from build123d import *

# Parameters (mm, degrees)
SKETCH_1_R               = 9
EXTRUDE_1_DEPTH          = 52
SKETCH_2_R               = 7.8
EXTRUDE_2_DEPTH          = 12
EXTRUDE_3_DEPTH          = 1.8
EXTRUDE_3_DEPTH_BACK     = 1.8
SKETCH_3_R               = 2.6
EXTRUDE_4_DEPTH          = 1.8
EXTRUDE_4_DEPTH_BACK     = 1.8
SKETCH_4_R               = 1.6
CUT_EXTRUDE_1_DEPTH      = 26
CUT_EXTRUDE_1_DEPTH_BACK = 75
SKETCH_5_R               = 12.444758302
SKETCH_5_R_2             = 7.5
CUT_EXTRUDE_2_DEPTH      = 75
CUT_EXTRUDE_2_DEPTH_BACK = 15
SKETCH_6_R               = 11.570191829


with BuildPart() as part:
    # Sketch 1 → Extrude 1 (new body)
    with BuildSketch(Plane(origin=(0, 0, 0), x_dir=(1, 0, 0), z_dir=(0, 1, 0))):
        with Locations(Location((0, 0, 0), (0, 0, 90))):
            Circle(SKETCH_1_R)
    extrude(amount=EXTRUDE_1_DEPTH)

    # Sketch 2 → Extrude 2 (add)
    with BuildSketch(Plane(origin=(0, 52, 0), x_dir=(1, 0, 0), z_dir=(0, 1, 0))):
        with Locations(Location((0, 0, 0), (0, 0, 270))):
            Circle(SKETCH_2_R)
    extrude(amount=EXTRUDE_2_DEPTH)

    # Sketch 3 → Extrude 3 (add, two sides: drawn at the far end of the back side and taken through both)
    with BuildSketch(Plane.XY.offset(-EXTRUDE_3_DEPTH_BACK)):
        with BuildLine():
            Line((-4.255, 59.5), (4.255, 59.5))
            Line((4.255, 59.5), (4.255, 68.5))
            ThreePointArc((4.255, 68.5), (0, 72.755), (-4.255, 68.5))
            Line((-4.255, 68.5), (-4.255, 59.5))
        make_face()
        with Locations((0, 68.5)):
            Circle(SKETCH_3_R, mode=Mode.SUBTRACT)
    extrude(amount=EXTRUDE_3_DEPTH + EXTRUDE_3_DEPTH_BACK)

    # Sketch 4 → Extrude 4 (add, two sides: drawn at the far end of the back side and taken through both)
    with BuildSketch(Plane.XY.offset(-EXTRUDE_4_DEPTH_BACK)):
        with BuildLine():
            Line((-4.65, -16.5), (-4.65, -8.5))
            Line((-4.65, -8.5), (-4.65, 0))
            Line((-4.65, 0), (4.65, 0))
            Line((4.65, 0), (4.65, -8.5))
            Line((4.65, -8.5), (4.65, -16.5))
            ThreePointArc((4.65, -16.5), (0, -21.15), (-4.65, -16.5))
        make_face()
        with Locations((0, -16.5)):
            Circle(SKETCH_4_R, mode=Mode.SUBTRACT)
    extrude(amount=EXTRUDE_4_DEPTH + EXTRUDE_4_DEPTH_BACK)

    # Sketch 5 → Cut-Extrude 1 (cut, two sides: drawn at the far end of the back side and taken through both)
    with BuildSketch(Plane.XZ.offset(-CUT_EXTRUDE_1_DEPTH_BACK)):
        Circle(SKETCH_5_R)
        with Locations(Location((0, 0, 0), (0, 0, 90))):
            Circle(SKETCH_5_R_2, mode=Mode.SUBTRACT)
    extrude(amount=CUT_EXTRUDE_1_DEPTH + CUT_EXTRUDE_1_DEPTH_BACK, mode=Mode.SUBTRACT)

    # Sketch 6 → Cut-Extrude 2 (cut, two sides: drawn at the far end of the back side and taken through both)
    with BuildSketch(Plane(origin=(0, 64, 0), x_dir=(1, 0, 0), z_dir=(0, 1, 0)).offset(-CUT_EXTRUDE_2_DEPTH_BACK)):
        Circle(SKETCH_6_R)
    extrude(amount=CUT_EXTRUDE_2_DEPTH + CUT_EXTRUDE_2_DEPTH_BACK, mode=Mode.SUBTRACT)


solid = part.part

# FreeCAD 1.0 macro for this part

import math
import FreeCAD as App
import Part
import Sketcher
from FreeCAD import Vector

doc = App.newDocument("Part")
body = doc.addObject("PartDesign::Body", "Body")

# Sketch on XZ plane
sketch1 = doc.addObject("Sketcher::SketchObject", "Sketch")
body.addObject(sketch1)
sketch1.AttachmentSupport = (doc.XZ_Plane, [""])
sketch1.MapMode = "FlatFace"
sketch1.addGeometry(Part.Circle(Vector(0, 0, 0), Vector(0, 0, 1), 9), False)
sketch1.addConstraint([
    Sketcher.Constraint("Coincident", 0, 3, -1, 1),
    Sketcher.Constraint("Diameter", 0, 18.0),
])
pad1 = doc.addObject("PartDesign::Pad", "Pad")
body.addObject(pad1)
pad1.Profile = sketch1
pad1.Length = 52
pad1.Reversed = True

# Sketch on XZ plane
sketch2 = doc.addObject("Sketcher::SketchObject", "Sketch001")
body.addObject(sketch2)
sketch2.AttachmentSupport = (doc.XZ_Plane, [""])
sketch2.MapMode = "FlatFace"
sketch2.AttachmentOffset = App.Placement(Vector(0, 0, -52), App.Rotation())
sketch2.addGeometry(Part.Circle(Vector(0, 0, 0), Vector(0, 0, 1), 8), False)
sketch2.addConstraint([
    Sketcher.Constraint("Coincident", 0, 3, -1, 1),
    Sketcher.Constraint("Diameter", 0, 15.6),
])
pad2 = doc.addObject("PartDesign::Pad", "Pad001")
body.addObject(pad2)
pad2.Profile = sketch2
pad2.Length = 12
pad2.Reversed = True

# Sketch on XY plane
sketch3 = doc.addObject("Sketcher::SketchObject", "Sketch002")
body.addObject(sketch3)
sketch3.AttachmentSupport = (doc.XY_Plane, [""])
sketch3.MapMode = "FlatFace"
sketch3.addGeometry([
    Part.LineSegment(Vector(-4.3, 59.5, 0), Vector(4.3, 59.5, 0)),  # 0
    Part.LineSegment(Vector(4.3, 59.5, 0), Vector(4.3, 68.5, 0)),  # 1
    Part.ArcOfCircle(Part.Circle(Vector(0, 68.5, 0), Vector(0, 0, 1), 4.3), math.radians(0), math.radians(180)),  # 2
    Part.LineSegment(Vector(-4.3, 68.5, 0), Vector(-4.3, 59.5, 0)),  # 3
    Part.Circle(Vector(0, 68.5, 0), Vector(0, 0, 1), 2.6),  # 4
], False)
sketch3.addConstraint([
    Sketcher.Constraint("Coincident", 0, 2, 1, 1),
    Sketcher.Constraint("Tangent", 1, 2, 2, 1),
    Sketcher.Constraint("Tangent", 2, 2, 3, 1),
    Sketcher.Constraint("Coincident", 3, 2, 0, 1),
    Sketcher.Constraint("Horizontal", 0),
    Sketcher.Constraint("Vertical", 1),
    Sketcher.Constraint("Vertical", 3),
    Sketcher.Constraint("Coincident", 4, 3, 2, 3),
    Sketcher.Constraint("PointOnObject", 2, 3, -2),
    Sketcher.Constraint("Diameter", 4, 5.2),
    Sketcher.Constraint("DistanceY", 1, 1, 1, 2, 9.0),
    Sketcher.Constraint("Radius", 2, 4.255),
    Sketcher.Constraint("DistanceY", -1, 1, 2, 3, 68.5),
])
pad3 = doc.addObject("PartDesign::Pad", "Pad002")
body.addObject(pad3)
pad3.Profile = sketch3
pad3.Type = "TwoLengths"
pad3.Length = 1.8
pad3.Length2 = 1.8

# Sketch on XY plane
sketch4 = doc.addObject("Sketcher::SketchObject", "Sketch003")
body.addObject(sketch4)
sketch4.AttachmentSupport = (doc.XY_Plane, [""])
sketch4.MapMode = "FlatFace"
sketch4.addGeometry([
    Part.LineSegment(Vector(-4.7, 0, 0), Vector(-4.7, -16.5, 0)),  # 0
    Part.ArcOfCircle(Part.Circle(Vector(0, -16.5, 0), Vector(0, 0, 1), 4.7), math.radians(180), math.radians(360)),  # 1
    Part.LineSegment(Vector(4.7, -16.5, 0), Vector(4.7, 0, 0)),  # 2
    Part.LineSegment(Vector(4.7, 0, 0), Vector(-4.7, 0, 0)),  # 3
    Part.Circle(Vector(0, -16.5, 0), Vector(0, 0, 1), 1.6),  # 4
], False)
sketch4.addConstraint([
    Sketcher.Constraint("Tangent", 0, 2, 1, 1),
    Sketcher.Constraint("Tangent", 1, 2, 2, 1),
    Sketcher.Constraint("Coincident", 2, 2, 3, 1),
    Sketcher.Constraint("Coincident", 3, 2, 0, 1),
    Sketcher.Constraint("Vertical", 0),
    Sketcher.Constraint("Vertical", 2),
    Sketcher.Constraint("Horizontal", 3),
    Sketcher.Constraint("Coincident", 4, 3, 1, 3),
    Sketcher.Constraint("Symmetric", 2, 2, 3, 2, -1, 1),
    Sketcher.Constraint("Diameter", 4, 3.2),
    Sketcher.Constraint("Radius", 1, 4.65),
    Sketcher.Constraint("DistanceY", 0, 2, 0, 1, 16.5),
])
pad4 = doc.addObject("PartDesign::Pad", "Pad003")
body.addObject(pad4)
pad4.Profile = sketch4
pad4.Type = "TwoLengths"
pad4.Length = 1.8
pad4.Length2 = 1.8

# Sketch on XZ plane
sketch5 = doc.addObject("Sketcher::SketchObject", "Sketch004")
body.addObject(sketch5)
sketch5.AttachmentSupport = (doc.XZ_Plane, [""])
sketch5.MapMode = "FlatFace"
sketch5.addGeometry([
    Part.Circle(Vector(0, 0, 0), Vector(0, 0, 1), 12),
    Part.Circle(Vector(0, 0, 0), Vector(0, 0, 1), 8),
], False)
sketch5.addConstraint([
    Sketcher.Constraint("Coincident", 0, 3, -1, 1),
    Sketcher.Constraint("Coincident", 1, 3, -1, 1),
    Sketcher.Constraint("Diameter", 1, 15.0),
    Sketcher.Constraint("Diameter", 0, 24.889517),
])
pocket1 = doc.addObject("PartDesign::Pocket", "Pocket")
body.addObject(pocket1)
pocket1.Profile = sketch5
pocket1.Type = "ThroughAll"
pocket1.Midplane = True

# Sketch on XZ plane
sketch6 = doc.addObject("Sketcher::SketchObject", "Sketch005")
body.addObject(sketch6)
sketch6.AttachmentSupport = (doc.XZ_Plane, [""])
sketch6.MapMode = "FlatFace"
sketch6.AttachmentOffset = App.Placement(Vector(0, 0, -64), App.Rotation())
sketch6.addGeometry(Part.Circle(Vector(0, 0, 0), Vector(0, 0, 1), 12), False)
sketch6.addConstraint([
    Sketcher.Constraint("Coincident", 0, 3, -1, 1),
    Sketcher.Constraint("Diameter", 0, 23.140384),
])
pocket2 = doc.addObject("PartDesign::Pocket", "Pocket001")
body.addObject(pocket2)
pocket2.Profile = sketch6
pocket2.Type = "TwoLengths"
pocket2.Length = 75
pocket2.Length2 = 15

doc.recompute()
